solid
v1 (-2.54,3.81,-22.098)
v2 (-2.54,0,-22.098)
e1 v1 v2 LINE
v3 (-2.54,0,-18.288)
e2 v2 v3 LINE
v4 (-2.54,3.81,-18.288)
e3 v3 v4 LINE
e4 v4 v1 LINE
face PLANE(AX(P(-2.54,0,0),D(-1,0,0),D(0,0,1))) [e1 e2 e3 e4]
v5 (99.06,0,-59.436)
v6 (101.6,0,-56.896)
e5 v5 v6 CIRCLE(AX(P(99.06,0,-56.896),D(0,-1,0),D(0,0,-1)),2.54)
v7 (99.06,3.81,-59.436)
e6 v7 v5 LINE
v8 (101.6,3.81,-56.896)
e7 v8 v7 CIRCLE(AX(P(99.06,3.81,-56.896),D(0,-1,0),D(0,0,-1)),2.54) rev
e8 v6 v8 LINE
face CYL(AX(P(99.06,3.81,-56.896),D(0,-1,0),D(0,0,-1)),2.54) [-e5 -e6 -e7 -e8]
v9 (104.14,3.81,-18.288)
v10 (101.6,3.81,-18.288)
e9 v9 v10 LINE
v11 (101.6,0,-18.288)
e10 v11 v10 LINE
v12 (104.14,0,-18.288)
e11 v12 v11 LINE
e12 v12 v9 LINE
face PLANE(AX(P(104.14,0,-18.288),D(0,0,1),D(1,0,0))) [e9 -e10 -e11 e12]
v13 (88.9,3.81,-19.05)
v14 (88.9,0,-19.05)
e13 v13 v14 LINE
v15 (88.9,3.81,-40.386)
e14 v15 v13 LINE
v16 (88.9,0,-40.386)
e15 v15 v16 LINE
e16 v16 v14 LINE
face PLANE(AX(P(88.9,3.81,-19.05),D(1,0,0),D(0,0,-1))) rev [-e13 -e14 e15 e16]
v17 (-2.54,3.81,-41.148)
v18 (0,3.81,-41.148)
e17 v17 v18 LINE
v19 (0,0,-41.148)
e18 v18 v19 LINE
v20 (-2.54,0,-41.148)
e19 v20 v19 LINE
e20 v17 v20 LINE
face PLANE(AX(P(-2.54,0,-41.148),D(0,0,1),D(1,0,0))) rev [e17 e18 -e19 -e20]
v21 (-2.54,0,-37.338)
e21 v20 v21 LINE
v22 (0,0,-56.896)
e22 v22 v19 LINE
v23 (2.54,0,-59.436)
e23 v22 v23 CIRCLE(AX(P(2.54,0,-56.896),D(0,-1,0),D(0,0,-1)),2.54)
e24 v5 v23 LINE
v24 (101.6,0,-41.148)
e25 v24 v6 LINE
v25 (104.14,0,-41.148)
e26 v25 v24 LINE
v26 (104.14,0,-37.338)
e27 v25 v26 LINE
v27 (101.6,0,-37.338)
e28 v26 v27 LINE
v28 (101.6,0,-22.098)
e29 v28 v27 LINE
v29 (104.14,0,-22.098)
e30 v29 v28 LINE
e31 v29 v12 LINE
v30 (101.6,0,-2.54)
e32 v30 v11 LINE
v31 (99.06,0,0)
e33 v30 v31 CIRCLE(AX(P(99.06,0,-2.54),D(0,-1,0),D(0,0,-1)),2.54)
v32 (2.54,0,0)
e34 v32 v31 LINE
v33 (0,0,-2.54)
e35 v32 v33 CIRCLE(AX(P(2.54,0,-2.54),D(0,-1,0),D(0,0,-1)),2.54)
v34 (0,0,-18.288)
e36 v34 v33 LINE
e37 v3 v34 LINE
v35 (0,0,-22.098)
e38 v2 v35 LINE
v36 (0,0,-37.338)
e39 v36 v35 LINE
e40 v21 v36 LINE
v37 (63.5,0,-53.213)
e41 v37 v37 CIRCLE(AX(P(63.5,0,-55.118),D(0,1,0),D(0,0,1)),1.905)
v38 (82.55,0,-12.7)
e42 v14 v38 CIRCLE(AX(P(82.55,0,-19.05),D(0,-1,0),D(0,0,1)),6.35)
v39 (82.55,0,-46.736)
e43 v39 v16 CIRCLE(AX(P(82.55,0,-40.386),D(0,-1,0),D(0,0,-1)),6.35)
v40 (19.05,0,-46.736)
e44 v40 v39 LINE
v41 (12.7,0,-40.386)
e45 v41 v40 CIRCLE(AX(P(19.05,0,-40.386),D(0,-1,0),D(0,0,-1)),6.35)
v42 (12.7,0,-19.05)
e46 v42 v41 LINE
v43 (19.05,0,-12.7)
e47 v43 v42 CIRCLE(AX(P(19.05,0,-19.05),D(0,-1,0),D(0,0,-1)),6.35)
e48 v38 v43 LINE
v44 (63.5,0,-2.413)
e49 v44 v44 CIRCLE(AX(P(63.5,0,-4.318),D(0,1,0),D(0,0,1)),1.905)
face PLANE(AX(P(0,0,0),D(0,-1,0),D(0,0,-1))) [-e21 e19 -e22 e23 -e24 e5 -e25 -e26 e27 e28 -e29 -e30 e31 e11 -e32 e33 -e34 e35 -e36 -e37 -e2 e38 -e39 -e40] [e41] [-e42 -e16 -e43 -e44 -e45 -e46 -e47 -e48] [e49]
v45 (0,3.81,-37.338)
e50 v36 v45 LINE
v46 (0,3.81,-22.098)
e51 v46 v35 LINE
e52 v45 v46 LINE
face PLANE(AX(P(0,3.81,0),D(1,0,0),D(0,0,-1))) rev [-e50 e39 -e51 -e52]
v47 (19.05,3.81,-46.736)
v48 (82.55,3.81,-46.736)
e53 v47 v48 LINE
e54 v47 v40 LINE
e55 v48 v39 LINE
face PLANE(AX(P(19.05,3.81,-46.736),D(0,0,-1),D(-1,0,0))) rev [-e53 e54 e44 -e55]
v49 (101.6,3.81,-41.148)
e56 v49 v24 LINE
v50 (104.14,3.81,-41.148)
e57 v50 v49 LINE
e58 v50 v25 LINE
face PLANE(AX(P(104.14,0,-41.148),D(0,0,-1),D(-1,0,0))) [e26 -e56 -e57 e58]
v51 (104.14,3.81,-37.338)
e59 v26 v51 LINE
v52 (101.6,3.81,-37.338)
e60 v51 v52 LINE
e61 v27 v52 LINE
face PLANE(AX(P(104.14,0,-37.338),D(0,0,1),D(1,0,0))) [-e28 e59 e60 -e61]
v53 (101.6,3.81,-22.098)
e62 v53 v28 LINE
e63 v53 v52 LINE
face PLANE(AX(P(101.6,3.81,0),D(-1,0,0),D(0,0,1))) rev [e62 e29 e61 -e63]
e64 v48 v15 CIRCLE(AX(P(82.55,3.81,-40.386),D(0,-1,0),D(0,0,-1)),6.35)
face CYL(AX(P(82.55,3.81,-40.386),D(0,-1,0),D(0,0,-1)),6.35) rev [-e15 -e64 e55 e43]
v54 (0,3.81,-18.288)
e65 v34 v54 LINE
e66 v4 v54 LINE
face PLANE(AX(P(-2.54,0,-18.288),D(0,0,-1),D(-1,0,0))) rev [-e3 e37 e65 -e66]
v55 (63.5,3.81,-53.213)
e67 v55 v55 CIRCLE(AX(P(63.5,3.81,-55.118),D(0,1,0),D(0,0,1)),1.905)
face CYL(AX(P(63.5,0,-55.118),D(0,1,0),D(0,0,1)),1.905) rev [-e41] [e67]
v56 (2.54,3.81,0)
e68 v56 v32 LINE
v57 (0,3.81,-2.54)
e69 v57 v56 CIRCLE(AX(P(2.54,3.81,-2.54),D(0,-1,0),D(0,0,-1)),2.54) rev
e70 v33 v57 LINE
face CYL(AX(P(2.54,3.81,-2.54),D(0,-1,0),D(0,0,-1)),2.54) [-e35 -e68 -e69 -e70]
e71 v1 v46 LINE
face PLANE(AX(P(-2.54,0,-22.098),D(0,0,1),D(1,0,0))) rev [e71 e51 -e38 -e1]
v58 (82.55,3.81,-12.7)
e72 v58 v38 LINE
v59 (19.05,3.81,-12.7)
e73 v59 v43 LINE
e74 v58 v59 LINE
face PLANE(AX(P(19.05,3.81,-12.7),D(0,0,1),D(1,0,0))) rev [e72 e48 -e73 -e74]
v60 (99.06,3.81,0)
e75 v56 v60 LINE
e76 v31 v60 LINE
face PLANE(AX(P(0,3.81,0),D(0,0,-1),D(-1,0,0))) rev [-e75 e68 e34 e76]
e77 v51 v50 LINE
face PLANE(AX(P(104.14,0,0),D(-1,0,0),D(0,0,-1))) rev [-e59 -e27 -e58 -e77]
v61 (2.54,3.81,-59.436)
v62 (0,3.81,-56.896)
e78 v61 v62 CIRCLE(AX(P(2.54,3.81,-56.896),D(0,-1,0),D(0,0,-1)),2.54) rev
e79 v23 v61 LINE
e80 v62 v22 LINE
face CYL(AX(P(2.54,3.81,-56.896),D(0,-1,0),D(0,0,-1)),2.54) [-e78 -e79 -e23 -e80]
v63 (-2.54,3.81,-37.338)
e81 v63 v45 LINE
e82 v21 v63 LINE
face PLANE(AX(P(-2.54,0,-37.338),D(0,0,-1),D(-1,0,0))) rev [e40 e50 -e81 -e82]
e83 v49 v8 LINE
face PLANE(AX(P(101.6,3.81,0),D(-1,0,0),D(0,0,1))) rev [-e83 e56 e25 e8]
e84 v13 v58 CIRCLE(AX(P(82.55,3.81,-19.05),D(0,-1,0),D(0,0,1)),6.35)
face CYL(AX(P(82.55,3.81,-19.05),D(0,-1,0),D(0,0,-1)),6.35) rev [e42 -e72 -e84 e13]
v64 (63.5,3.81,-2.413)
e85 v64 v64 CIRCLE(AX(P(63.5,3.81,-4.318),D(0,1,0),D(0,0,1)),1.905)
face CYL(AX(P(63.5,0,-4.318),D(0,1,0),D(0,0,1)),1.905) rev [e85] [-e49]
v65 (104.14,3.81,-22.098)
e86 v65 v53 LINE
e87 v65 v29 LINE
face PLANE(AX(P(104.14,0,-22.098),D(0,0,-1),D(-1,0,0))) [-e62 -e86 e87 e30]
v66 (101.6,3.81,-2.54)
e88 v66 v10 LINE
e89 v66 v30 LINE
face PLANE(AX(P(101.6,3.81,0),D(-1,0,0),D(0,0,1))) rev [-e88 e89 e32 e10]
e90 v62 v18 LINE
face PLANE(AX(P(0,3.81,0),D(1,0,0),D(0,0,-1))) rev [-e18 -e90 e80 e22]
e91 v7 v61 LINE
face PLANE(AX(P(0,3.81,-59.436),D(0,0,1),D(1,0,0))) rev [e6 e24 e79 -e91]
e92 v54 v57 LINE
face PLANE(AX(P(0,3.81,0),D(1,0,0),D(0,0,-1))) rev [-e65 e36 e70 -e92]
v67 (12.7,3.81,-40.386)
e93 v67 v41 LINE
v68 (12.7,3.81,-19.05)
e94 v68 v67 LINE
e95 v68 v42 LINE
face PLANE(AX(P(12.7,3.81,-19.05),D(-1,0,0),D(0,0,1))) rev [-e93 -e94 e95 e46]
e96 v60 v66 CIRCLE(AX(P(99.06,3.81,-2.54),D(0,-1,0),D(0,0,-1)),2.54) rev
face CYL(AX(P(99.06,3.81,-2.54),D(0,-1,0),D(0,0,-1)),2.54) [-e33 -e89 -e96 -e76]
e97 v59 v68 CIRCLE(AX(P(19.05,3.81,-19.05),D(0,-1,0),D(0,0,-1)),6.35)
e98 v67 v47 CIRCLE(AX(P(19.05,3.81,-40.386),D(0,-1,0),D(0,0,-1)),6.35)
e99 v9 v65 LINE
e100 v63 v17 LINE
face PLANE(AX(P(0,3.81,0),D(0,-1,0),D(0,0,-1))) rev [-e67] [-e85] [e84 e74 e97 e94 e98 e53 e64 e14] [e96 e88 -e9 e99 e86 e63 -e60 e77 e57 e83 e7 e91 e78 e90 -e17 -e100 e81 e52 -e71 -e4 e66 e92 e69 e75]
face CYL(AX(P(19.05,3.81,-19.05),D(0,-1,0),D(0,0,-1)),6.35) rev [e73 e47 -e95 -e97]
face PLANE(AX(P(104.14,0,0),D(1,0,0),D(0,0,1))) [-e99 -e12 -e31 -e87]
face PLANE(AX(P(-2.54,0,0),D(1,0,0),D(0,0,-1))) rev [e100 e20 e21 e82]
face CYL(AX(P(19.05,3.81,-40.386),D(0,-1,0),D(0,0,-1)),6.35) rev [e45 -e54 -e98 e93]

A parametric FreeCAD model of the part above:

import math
import FreeCAD as App
import Part
import Sketcher
from FreeCAD import Vector
Q = App.Units.Quantity


def edges_at(feature, points):
    """Names of the edges that pass closest to the given points."""
    edges = feature.Shape.Edges
    near = lambda p: min(range(len(edges)), key=lambda i: edges[i].distToShape(Part.Vertex(*p))[0])
    return sorted({f"Edge{near(p) + 1}" for p in points})


def add_polygon(sketch, points):
    """Adds a closed chain of lines whose ends are joined by coincident constraints."""
    first, n = sketch.GeometryCount, len(points)
    for a, b in zip(points, points[1:] + points[:1]):
        sketch.addGeometry(Part.LineSegment(App.Vector(*a, 0), App.Vector(*b, 0)), False)
    for i in range(n):
        sketch.addConstraint(Sketcher.Constraint("Coincident", first + i, 2, first + (i + 1) % n, 1))

doc = App.newDocument("Part")
body = doc.addObject("PartDesign::Body", "Body")

# Sketch on XZ plane
sketch1 = body.newObject("Sketcher::SketchObject", "Sketch")
sketch1.AttachmentSupport = (doc.getObject("XZ_Plane"), [""])
sketch1.MapMode = "FlatFace"
add_polygon(sketch1, [(0, -59.436), (0, 0), (101.6, 0), (101.6, -59.436)])  # lines 0-3
sketch1.addConstraint(Sketcher.Constraint("Vertical", 0))
sketch1.addConstraint(Sketcher.Constraint("Horizontal", 1))
sketch1.addConstraint(Sketcher.Constraint("Vertical", 2))
sketch1.addConstraint(Sketcher.Constraint("Horizontal", 3))
sketch1.addConstraint(Sketcher.Constraint("Coincident", 0, 2, -1, 1))
sketch1.addConstraint(Sketcher.Constraint("DistanceX", 1, 1, 1, 2, Q("4 in")))
sketch1.addConstraint(Sketcher.Constraint("DistanceY", 0, 1, 0, 2, Q("2.34 in")))
pad1 = body.newObject("PartDesign::Pad", "Pad")
pad1.Profile = sketch1
pad1.Length = Q("0.15 in")
pad1.Reversed = True
doc.recompute()

fillet = body.newObject("PartDesign::Fillet", "Fillet")
fillet.Base = (pad1, edges_at(pad1, [
    (0, 1.905, -59.436),
    (101.6, 1.905, -59.436),
    (101.6, 1.905, 0),
    (0, 1.905, 0),
]))
fillet.Radius = Q("0.1 in")

# Sketch on YZ plane
sketch2 = body.newObject("Sketcher::SketchObject", "Sketch001")
sketch2.AttachmentSupport = (doc.getObject("YZ_Plane"), [""])
sketch2.MapMode = "FlatFace"
add_polygon(sketch2, [(3.81, -22.098), (0, -22.098), (0, -18.288), (3.81, -18.288)])  # lines 0-3
add_polygon(sketch2, [(3.81, -41.148), (0, -41.148), (0, -37.338), (3.81, -37.338)])  # lines 4-7
sketch2.addConstraint(Sketcher.Constraint("Horizontal", 0))
sketch2.addConstraint(Sketcher.Constraint("Vertical", 1))
sketch2.addConstraint(Sketcher.Constraint("Horizontal", 2))
sketch2.addConstraint(Sketcher.Constraint("Vertical", 3))
sketch2.addConstraint(Sketcher.Constraint("Horizontal", 4))
sketch2.addConstraint(Sketcher.Constraint("Vertical", 5))
sketch2.addConstraint(Sketcher.Constraint("Horizontal", 6))
sketch2.addConstraint(Sketcher.Constraint("Vertical", 7))
sketch2.addConstraint(Sketcher.Constraint("PointOnObject", 0, 2, -2))
sketch2.addConstraint(Sketcher.Constraint("PointOnObject", 4, 2, -2))
sketch2.addConstraint(Sketcher.Constraint("Vertical", 3, 2, 6, 2))
sketch2.addConstraint(Sketcher.Constraint("Equal", 6, 1))
sketch2.addConstraint(Sketcher.Constraint("Equal", 3, 5))
sketch2.addConstraint(Sketcher.Constraint("DistanceX", 0, 2, 0, 1, Q("0.15 in")))
sketch2.addConstraint(Sketcher.Constraint("DistanceY", 4, 2, 1, 2, Q("0.9 in")))
sketch2.addConstraint(Sketcher.Constraint("DistanceY", 0, 2, -1, 1, Q("0.87 in")))
pad2 = body.newObject("PartDesign::Pad", "Pad001")
pad2.Profile = sketch2
pad2.Length = Q("0.1 in")
pad2.Reversed = True
doc.recompute()

datumplane = body.newObject("PartDesign::Plane", "DatumPlane")
datumplane.AttachmentSupport = (doc.getObject("YZ_Plane"), [""])
datumplane.MapMode = "FlatFace"
datumplane.AttachmentOffset = App.Placement(Vector(0, 0, 2 * 25.4), App.Rotation())
mirrored = body.newObject("PartDesign::Mirrored", "Mirrored")
mirrored.Originals = [pad2]
mirrored.MirrorPlane = (datumplane, [""])
body.Tip = mirrored

# Sketch on XZ plane
sketch3 = body.newObject("Sketcher::SketchObject", "Sketch002")
sketch3.AttachmentSupport = (doc.getObject("XZ_Plane"), [""])
sketch3.MapMode = "FlatFace"
sketch3.addGeometry(Part.LineSegment(Vector(82.55, -12.7, 0), Vector(19.05, -12.7, 0)), False)
sketch3.addGeometry(Part.ArcOfCircle(Part.Circle(Vector(19.05, -19.05, 0), Vector(0, 0, 1), 6.35), math.radians(90), math.radians(180)), False)
sketch3.addGeometry(Part.LineSegment(Vector(12.7, -19.05, 0), Vector(12.7, -40.386, 0)), False)
sketch3.addGeometry(Part.ArcOfCircle(Part.Circle(Vector(19.05, -40.386, 0), Vector(0, 0, 1), 6.35), math.radians(180), math.radians(270)), False)
sketch3.addGeometry(Part.LineSegment(Vector(19.05, -46.736, 0), Vector(82.55, -46.736, 0)), False)
sketch3.addGeometry(Part.ArcOfCircle(Part.Circle(Vector(82.55, -40.386, 0), Vector(0, 0, 1), 6.35), math.radians(-90), math.radians(0)), False)
sketch3.addGeometry(Part.LineSegment(Vector(88.9, -40.386, 0), Vector(88.9, -19.05, 0)), False)
sketch3.addGeometry(Part.ArcOfCircle(Part.Circle(Vector(82.55, -19.05, 0), Vector(0, 0, 1), 6.35), math.radians(0), math.radians(90)), False)
sketch3.addConstraint(Sketcher.Constraint("Tangent", 0, 2, 1, 1))
sketch3.addConstraint(Sketcher.Constraint("Tangent", 1, 2, 2, 1))
sketch3.addConstraint(Sketcher.Constraint("Tangent", 2, 2, 3, 1))
sketch3.addConstraint(Sketcher.Constraint("Tangent", 3, 2, 4, 1))
sketch3.addConstraint(Sketcher.Constraint("Tangent", 4, 2, 5, 1))
sketch3.addConstraint(Sketcher.Constraint("Tangent", 5, 2, 6, 1))
sketch3.addConstraint(Sketcher.Constraint("Tangent", 6, 2, 7, 1))
sketch3.addConstraint(Sketcher.Constraint("Tangent", 7, 2, 0, 1))
sketch3.addConstraint(Sketcher.Constraint("Horizontal", 0))
sketch3.addConstraint(Sketcher.Constraint("Vertical", 2))
sketch3.addConstraint(Sketcher.Constraint("Horizontal", 4))
sketch3.addConstraint(Sketcher.Constraint("Vertical", 6))
sketch3.addConstraint(Sketcher.Constraint("Equal", 1, 3))
sketch3.addConstraint(Sketcher.Constraint("Equal", 3, 5))
sketch3.addConstraint(Sketcher.Constraint("Equal", 5, 7))
sketch3.addConstraint(Sketcher.Constraint("Radius", 1, Q("0.25 in")))
sketch3.addConstraint(Sketcher.Constraint("DistanceX", 0, 2, 0, 1, Q("2.5 in")))
sketch3.addConstraint(Sketcher.Constraint("DistanceY", 2, 2, 2, 1, Q("0.84 in")))
sketch3.addConstraint(Sketcher.Constraint("DistanceY", 0, 2, -1, 1, Q("0.5 in")))
sketch3.addConstraint(Sketcher.Constraint("DistanceX", -1, 1, 1, 2, Q("0.5 in")))
pocket1 = body.newObject("PartDesign::Pocket", "Pocket")
pocket1.Profile = sketch3
pocket1.Type = "ThroughAll"

# Sketch on XZ plane
sketch4 = body.newObject("Sketcher::SketchObject", "Sketch003")
sketch4.AttachmentSupport = (doc.getObject("XZ_Plane"), [""])
sketch4.MapMode = "FlatFace"
sketch4.AttachmentOffset = App.Placement(Vector(0, 0, -0.15 * 25.4), App.Rotation())
sketch4.addGeometry(Part.Circle(Vector(63.5, -4.318, 0), Vector(0, 0, 1), 1.905), False)
sketch4.addGeometry(Part.Circle(Vector(63.5, -55.118, 0), Vector(0, 0, 1), 1.905), False)
sketch4.addConstraint(Sketcher.Constraint("Equal", 0, 1))
sketch4.addConstraint(Sketcher.Constraint("Vertical", 0, 3, 1, 3))
sketch4.addConstraint(Sketcher.Constraint("Diameter", 0, Q("0.15 in")))
sketch4.addConstraint(Sketcher.Constraint("DistanceY", 1, 3, 0, 3, Q("2 in")))
sketch4.addConstraint(Sketcher.Constraint("DistanceX", -1, 1, 0, 3, Q("2.5 in")))
sketch4.addConstraint(Sketcher.Constraint("DistanceY", 0, 3, -1, 1, Q("0.17 in")))
pocket2 = body.newObject("PartDesign::Pocket", "Pocket001")
pocket2.Profile = sketch4
pocket2.Type = "ThroughAll"
pocket2.Reversed = True

doc.recompute()
